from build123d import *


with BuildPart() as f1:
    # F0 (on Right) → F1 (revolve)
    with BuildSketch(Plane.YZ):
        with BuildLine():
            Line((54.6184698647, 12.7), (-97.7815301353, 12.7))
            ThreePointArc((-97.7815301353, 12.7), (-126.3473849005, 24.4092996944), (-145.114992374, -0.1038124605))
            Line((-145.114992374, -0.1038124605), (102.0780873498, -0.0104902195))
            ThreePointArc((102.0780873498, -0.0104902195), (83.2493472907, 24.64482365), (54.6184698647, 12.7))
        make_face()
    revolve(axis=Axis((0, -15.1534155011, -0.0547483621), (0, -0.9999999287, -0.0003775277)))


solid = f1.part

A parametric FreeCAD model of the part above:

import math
import FreeCAD as App
import Part
import Sketcher
Q = App.Units.Quantity

doc = App.newDocument("Part")
body = doc.addObject("PartDesign::Body", "Body")

# Sketch on YZ plane
sketch1 = body.newObject("Sketcher::SketchObject", "Sketch")
sketch1.AttachmentSupport = (doc.getObject("YZ_Plane"), [""])
sketch1.MapMode = "FlatFace"
sketch1.addGeometry([
    Part.LineSegment(App.Vector(55, 13, 0), App.Vector(-98, 13, 0)),
    Part.ArcOfCircle(Part.Circle(App.Vector(-120, 0, 0), App.Vector(0, 0, 1), 25), math.radians(30), math.radians(180)),
    Part.LineSegment(App.Vector(-145, 0, 0), App.Vector(102, 0, 0)),
    Part.ArcOfCircle(Part.Circle(App.Vector(77, 0, 0), App.Vector(0, 0, 1), 25), math.radians(0), math.radians(150)),
], False)
sketch1.addGeometry(Part.LineSegment(App.Vector(102, 0, 0), App.Vector(-145, 0, 0)), True)  # axis
sketch1.addConstraint([
    Sketcher.Constraint("Coincident", 0, 2, 1, 1),
    Sketcher.Constraint("Coincident", 1, 2, 2, 1),
    Sketcher.Constraint("Coincident", 2, 2, 3, 1),
    Sketcher.Constraint("Coincident", 3, 2, 0, 1),
    Sketcher.Constraint("Horizontal", 0),
    Sketcher.Constraint("Coincident", 4, 1, 2, 2),
    Sketcher.Constraint("Coincident", 4, 2, 1, 2),
    Sketcher.Constraint("Equal", 1, 3),
    Sketcher.Constraint("Radius", 1, Q("1 in")),
    Sketcher.Constraint("DistanceX", 0, 2, 0, 1, Q("6 in")),
    Sketcher.Constraint("DistanceY", -1, 1, 0, 2, Q("0.5 in")),
    Sketcher.Constraint("DistanceX", 0, 2, 3, 3, Q("6.8685 in")),
    Sketcher.Constraint("DistanceX", -1, 1, 3, 3, 76.678371),
    Sketcher.Constraint("DistanceY", 2, 2, -1, 1, 0.01049),
    Sketcher.Constraint("DistanceY", 1, 2, 3, 3, 0.213309),
    Sketcher.Constraint("DistanceX", 1, 3, 2, 2, 221.79308),
])
revolution = body.newObject("PartDesign::Revolution", "Revolution")
revolution.Profile = sketch1
revolution.ReferenceAxis = (sketch1, ["Axis0"])
revolution.Angle = 360

doc.recompute()
